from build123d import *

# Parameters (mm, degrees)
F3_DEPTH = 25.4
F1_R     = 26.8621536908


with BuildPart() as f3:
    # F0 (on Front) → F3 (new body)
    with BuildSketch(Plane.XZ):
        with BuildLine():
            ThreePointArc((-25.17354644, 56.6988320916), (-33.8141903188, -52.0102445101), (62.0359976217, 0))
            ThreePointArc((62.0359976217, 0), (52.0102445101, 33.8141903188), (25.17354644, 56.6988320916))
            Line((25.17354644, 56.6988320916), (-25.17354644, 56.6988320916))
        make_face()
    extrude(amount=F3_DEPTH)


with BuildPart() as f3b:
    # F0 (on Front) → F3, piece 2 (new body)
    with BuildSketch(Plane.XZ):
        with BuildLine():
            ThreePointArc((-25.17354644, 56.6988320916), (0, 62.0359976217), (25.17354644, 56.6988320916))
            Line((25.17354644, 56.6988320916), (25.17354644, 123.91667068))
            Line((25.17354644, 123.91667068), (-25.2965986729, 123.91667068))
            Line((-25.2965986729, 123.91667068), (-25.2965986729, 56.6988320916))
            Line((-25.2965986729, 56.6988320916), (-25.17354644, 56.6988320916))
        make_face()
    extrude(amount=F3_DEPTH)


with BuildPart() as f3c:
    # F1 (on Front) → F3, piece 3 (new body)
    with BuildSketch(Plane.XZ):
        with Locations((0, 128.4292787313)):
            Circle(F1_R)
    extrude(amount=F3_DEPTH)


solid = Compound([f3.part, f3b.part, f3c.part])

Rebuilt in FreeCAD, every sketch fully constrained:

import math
import FreeCAD as App
import Part
import Sketcher

doc = App.newDocument("Part")
params = doc.addObject("Spreadsheet::Sheet", "Params")
for row, (alias, value) in enumerate([
    ("pad1_length", "1 in"),
    ("pad2_length", "1 in"),
    ("pad3_length", "1 in"),
], start=1):
    params.set(f"A{row}", alias)
    params.set(f"B{row}", "=" + value)
    params.setAlias(f"B{row}", alias)

body = doc.addObject("PartDesign::Body", "Body")

# Sketch on XZ plane
sketch1 = doc.addObject("Sketcher::SketchObject", "Sketch")
body.addObject(sketch1)
sketch1.AttachmentSupport = (doc.XZ_Plane, [""])
sketch1.MapMode = "FlatFace"
sketch1.addGeometry(Part.ArcOfCircle(Part.Circle(App.Vector(0, 0, 0), App.Vector(0, 0, 1), 62.035998), math.radians(113.940601), math.radians(360)), False)
sketch1.addGeometry(Part.ArcOfCircle(Part.Circle(App.Vector(0, 0, 0), App.Vector(0, 0, 1), 62.035998), math.radians(0), math.radians(66.059399)), False)
sketch1.addGeometry(Part.LineSegment(App.Vector(25.173546, 56.698832, 0), App.Vector(-25.173546, 56.698832, 0)), False)
sketch1.addConstraint(Sketcher.Constraint("Tangent", 0, 2, 1, 1))
sketch1.addConstraint(Sketcher.Constraint("Coincident", 1, 2, 2, 1))
sketch1.addConstraint(Sketcher.Constraint("Coincident", 2, 2, 0, 1))
sketch1.addConstraint(Sketcher.Constraint("Horizontal", 2))
sketch1.addConstraint(Sketcher.Constraint("Coincident", 0, 3, -1, 1))
sketch1.addConstraint(Sketcher.Constraint("Equal", 0, 1))
sketch1.addConstraint(Sketcher.Constraint("PointOnObject", 0, 2, -1))
sketch1.addConstraint(Sketcher.Constraint("Radius", 0, 62.035998))
sketch1.addConstraint(Sketcher.Constraint("DistanceX", 2, 2, 2, 1, 50.347093))
pad1 = doc.addObject("PartDesign::Pad", "Pad")
body.addObject(pad1)
pad1.Profile = sketch1
pad1.setExpression("Length", "Params.pad1_length")
body2 = doc.addObject("PartDesign::Body", "Body001")

# Sketch on XZ plane
sketch2 = doc.addObject("Sketcher::SketchObject", "Sketch001")
body2.addObject(sketch2)
sketch2.AttachmentSupport = (doc.getObject("XZ_Plane001"), [""])
sketch2.MapMode = "FlatFace"
sketch2.addGeometry(Part.ArcOfCircle(Part.Circle(App.Vector(0, 0, 0), App.Vector(0, 0, 1), 62.035998), math.radians(66.059399), math.radians(113.940601)), False)
sketch2.addGeometry(Part.LineSegment(App.Vector(25.173546, 56.698832, 0), App.Vector(25.173546, 123.916671, 0)), False)
sketch2.addGeometry(Part.LineSegment(App.Vector(25.173546, 123.916671, 0), App.Vector(-25.296599, 123.916671, 0)), False)
sketch2.addGeometry(Part.LineSegment(App.Vector(-25.296599, 123.916671, 0), App.Vector(-25.296599, 56.698832, 0)), False)
sketch2.addGeometry(Part.LineSegment(App.Vector(-25.296599, 56.698832, 0), App.Vector(-25.173546, 56.698832, 0)), False)
sketch2.addConstraint(Sketcher.Constraint("Coincident", 0, 1, 1, 1))
sketch2.addConstraint(Sketcher.Constraint("Coincident", 1, 2, 2, 1))
sketch2.addConstraint(Sketcher.Constraint("Coincident", 2, 2, 3, 1))
sketch2.addConstraint(Sketcher.Constraint("Coincident", 3, 2, 4, 1))
sketch2.addConstraint(Sketcher.Constraint("Coincident", 4, 2, 0, 2))
sketch2.addConstraint(Sketcher.Constraint("Vertical", 1))
sketch2.addConstraint(Sketcher.Constraint("Horizontal", 2))
sketch2.addConstraint(Sketcher.Constraint("Vertical", 3))
sketch2.addConstraint(Sketcher.Constraint("Horizontal", 4))
sketch2.addConstraint(Sketcher.Constraint("Coincident", 0, 3, -1, 1))
sketch2.addConstraint(Sketcher.Constraint("Horizontal", 0, 1, 3, 2))
sketch2.addConstraint(Sketcher.Constraint("Radius", 0, 62.035998))
sketch2.addConstraint(Sketcher.Constraint("DistanceY", 1, 1, 1, 2, 67.217839))
sketch2.addConstraint(Sketcher.Constraint("DistanceX", 2, 2, -1, 1, 25.296599))
sketch2.addConstraint(Sketcher.Constraint("DistanceX", 2, 2, 2, 1, 50.470145))
pad2 = doc.addObject("PartDesign::Pad", "Pad001")
body2.addObject(pad2)
pad2.Profile = sketch2
pad2.setExpression("Length", "Params.pad2_length")
body3 = doc.addObject("PartDesign::Body", "Body002")

# Sketch on XZ plane
sketch3 = doc.addObject("Sketcher::SketchObject", "Sketch002")
body3.addObject(sketch3)
sketch3.AttachmentSupport = (doc.getObject("XZ_Plane002"), [""])
sketch3.MapMode = "FlatFace"
sketch3.addGeometry(Part.Circle(App.Vector(0, 128.429279, 0), App.Vector(0, 0, 1), 26.862154), False)
sketch3.addConstraint(Sketcher.Constraint("PointOnObject", 0, 3, -2))
sketch3.addConstraint(Sketcher.Constraint("Diameter", 0, 53.724307))
sketch3.addConstraint(Sketcher.Constraint("DistanceY", -1, 1, 0, 3, 128.429279))
pad3 = doc.addObject("PartDesign::Pad", "Pad002")
body3.addObject(pad3)
pad3.Profile = sketch3
pad3.setExpression("Length", "Params.pad3_length")

doc.recompute()
